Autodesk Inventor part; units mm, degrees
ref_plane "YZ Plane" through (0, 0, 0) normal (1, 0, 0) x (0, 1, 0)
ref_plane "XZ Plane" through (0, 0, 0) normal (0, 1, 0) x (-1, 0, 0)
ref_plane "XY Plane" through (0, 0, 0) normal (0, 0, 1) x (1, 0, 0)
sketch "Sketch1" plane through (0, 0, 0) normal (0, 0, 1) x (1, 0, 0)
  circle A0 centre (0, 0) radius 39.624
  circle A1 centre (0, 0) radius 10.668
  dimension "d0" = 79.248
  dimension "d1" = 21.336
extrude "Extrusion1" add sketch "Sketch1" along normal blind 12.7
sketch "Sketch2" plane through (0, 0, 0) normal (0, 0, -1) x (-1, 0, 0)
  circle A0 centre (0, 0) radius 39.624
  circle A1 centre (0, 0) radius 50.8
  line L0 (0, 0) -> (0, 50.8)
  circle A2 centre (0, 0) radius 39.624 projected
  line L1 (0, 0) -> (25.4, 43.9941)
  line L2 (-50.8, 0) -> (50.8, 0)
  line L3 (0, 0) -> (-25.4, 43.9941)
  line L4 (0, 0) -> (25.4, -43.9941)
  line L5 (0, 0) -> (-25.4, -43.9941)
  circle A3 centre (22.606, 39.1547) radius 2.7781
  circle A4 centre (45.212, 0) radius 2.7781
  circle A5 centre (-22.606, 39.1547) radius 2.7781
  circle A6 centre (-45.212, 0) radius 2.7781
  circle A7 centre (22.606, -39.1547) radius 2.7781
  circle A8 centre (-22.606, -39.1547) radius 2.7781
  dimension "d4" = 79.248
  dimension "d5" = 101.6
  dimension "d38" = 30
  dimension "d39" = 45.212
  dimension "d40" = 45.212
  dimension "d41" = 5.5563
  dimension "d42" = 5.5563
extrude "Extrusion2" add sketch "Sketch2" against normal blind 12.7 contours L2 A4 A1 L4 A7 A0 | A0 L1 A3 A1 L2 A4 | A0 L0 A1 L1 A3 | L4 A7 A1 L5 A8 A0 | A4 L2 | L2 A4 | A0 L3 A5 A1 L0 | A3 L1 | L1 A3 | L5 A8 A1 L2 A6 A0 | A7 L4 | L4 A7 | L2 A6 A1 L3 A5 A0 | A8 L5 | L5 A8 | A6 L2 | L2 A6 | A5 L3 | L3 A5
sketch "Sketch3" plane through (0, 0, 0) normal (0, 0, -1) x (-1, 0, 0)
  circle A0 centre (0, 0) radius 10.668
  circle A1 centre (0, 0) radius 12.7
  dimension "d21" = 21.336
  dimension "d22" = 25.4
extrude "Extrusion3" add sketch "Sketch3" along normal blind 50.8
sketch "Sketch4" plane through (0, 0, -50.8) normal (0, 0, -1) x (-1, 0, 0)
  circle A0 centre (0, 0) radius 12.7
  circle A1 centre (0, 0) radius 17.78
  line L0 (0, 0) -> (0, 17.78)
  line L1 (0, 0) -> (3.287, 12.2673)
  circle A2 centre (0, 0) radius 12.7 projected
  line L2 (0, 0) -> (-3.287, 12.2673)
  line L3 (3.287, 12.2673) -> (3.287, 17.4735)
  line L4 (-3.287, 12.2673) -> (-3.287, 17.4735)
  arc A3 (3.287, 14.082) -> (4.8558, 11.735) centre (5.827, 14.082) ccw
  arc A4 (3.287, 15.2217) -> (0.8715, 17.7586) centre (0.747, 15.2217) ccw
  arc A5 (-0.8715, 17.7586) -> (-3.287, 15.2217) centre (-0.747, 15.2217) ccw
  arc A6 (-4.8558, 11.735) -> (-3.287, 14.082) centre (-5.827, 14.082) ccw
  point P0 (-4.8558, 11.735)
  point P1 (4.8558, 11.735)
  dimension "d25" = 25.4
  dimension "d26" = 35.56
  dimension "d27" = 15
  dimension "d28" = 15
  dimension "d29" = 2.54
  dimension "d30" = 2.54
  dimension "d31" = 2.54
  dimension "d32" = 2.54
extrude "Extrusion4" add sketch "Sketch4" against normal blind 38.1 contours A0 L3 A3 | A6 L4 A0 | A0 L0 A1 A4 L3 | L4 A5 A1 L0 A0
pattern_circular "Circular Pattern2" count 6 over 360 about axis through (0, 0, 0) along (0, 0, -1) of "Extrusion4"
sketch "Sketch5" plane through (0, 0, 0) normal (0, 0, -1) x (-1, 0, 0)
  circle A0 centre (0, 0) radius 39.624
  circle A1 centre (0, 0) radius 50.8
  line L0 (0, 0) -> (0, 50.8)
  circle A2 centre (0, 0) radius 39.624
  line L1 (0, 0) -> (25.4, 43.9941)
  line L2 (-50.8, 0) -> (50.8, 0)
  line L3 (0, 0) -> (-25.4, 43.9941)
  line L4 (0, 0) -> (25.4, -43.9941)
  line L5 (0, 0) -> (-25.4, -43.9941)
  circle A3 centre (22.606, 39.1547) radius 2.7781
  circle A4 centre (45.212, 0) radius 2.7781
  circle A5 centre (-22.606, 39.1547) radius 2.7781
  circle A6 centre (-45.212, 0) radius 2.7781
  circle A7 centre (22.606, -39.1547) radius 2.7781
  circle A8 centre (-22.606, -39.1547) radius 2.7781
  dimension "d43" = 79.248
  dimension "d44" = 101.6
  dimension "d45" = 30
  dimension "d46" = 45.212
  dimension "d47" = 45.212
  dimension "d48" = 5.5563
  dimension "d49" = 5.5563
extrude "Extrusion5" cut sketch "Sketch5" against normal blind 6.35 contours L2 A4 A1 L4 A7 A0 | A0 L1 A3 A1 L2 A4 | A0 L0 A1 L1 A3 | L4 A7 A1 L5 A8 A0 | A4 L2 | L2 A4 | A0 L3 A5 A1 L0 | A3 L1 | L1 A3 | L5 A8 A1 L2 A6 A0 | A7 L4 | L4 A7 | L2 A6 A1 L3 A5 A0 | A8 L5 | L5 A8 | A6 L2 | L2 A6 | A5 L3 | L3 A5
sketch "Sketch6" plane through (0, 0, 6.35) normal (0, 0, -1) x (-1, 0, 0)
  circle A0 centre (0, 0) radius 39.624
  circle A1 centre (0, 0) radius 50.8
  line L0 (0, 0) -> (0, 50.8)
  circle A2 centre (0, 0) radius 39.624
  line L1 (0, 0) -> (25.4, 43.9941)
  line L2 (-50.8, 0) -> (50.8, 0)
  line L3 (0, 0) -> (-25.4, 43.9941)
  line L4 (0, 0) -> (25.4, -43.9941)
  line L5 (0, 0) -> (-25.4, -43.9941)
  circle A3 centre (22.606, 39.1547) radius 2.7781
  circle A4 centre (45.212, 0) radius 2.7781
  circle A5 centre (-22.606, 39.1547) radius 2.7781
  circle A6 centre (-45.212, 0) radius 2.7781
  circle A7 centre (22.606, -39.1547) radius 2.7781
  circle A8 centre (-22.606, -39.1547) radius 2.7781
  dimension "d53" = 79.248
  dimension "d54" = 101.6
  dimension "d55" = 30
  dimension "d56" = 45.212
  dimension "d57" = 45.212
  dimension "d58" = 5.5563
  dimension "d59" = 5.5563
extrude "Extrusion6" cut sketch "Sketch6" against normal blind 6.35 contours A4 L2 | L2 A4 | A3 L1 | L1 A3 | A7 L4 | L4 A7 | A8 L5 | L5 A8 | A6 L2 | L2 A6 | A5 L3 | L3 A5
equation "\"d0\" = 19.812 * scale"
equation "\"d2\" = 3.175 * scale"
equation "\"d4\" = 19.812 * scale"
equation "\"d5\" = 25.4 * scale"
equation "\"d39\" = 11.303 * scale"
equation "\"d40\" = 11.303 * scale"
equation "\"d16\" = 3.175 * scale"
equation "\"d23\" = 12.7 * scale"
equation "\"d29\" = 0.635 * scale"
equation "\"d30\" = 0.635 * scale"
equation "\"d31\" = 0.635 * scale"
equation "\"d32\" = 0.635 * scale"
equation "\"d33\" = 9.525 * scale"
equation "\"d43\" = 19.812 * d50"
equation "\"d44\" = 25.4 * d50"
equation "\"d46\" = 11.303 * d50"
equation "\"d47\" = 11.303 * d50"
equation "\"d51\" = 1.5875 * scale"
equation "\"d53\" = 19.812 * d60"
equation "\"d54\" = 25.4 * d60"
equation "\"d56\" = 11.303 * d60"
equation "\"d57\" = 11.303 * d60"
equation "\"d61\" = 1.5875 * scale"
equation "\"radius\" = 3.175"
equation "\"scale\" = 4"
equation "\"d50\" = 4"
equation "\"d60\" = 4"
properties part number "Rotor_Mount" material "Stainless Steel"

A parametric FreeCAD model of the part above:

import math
import FreeCAD as App
import Part
import Sketcher
from FreeCAD import Vector
Q = App.Units.Quantity

doc = App.newDocument("Part")
params = doc.addObject("Spreadsheet::Sheet", "Params")
for row, (alias, value) in enumerate([
    ("sketch1_diameter", "3.12 in"),
    ("sketch1_diameter2", "0.84 in"),
    ("pad1_length", "0.5 in"),
    ("sketch2_diameter", "4 in"),
    ("sketch2_diameter2", "3.12 in"),
    ("pad2_length", "0.5 in"),
    ("sketch3_diameter", "1 in"),
    ("sketch3_diameter2", "0.84 in"),
    ("pad3_length", "2 in"),
    ("sketch4_radius", "0.1 in"),
    ("sketch4_radius2", "0.7 in"),
    ("sketch4_radius3", "0.5 in"),
    ("pad4_length", "1.5 in"),
    ("sketch5_diameter", "4 in"),
    ("sketch5_diameter2", "3.12 in"),
    ("pocket1_length", "0.25 in"),
    ("sketch6_diameter", "0.218748 in"),
    ("pocket2_length", "0.25 in"),
], start=1):
    params.set(f"A{row}", alias)
    params.set(f"B{row}", "=" + value)
    params.setAlias(f"B{row}", alias)

body = doc.addObject("PartDesign::Body", "Body")

# Sketch on XY plane
sketch1 = body.newObject("Sketcher::SketchObject", "Sketch")
sketch1.AttachmentSupport = (doc.getObject("XY_Plane"), [""])
sketch1.MapMode = "FlatFace"
sketch1.addGeometry(Part.Circle(Vector(0, 0, 0), Vector(0, 0, 1), 40), False)
sketch1.addGeometry(Part.Circle(Vector(0, 0, 0), Vector(0, 0, 1), 11), False)
sketch1.addConstraint(Sketcher.Constraint("Coincident", 0, 3, -1, 1))
sketch1.addConstraint(Sketcher.Constraint("Coincident", 1, 3, -1, 1))
sketch1.addConstraint(Sketcher.Constraint("Diameter", 0, Q("3.12 in")))
sketch1.addConstraint(Sketcher.Constraint("Diameter", 1, Q("0.84 in")))
sketch1.setExpression("Constraints[2]", "Params.sketch1_diameter")
sketch1.setExpression("Constraints[3]", "Params.sketch1_diameter2")
pad1 = body.newObject("PartDesign::Pad", "Pad")
pad1.Profile = sketch1
pad1.setExpression("Length", "Params.pad1_length")

# Sketch on XY plane
sketch2 = body.newObject("Sketcher::SketchObject", "Sketch001")
sketch2.AttachmentSupport = (doc.getObject("XY_Plane"), [""])
sketch2.MapMode = "FlatFace"
sketch2.addGeometry(Part.Circle(Vector(0, 0, 0), Vector(0, 0, 1), 51), False)
sketch2.addGeometry(Part.Circle(Vector(0, 0, 0), Vector(0, 0, 1), 40), False)
sketch2.addConstraint(Sketcher.Constraint("Coincident", 0, 3, -1, 1))
sketch2.addConstraint(Sketcher.Constraint("Coincident", 1, 3, -1, 1))
sketch2.addConstraint(Sketcher.Constraint("Diameter", 0, Q("4 in")))
sketch2.addConstraint(Sketcher.Constraint("Diameter", 1, Q("3.12 in")))
sketch2.setExpression("Constraints[2]", "Params.sketch2_diameter")
sketch2.setExpression("Constraints[3]", "Params.sketch2_diameter2")
pad2 = body.newObject("PartDesign::Pad", "Pad001")
pad2.Profile = sketch2
pad2.setExpression("Length", "Params.pad2_length")

# Sketch on XY plane
sketch3 = body.newObject("Sketcher::SketchObject", "Sketch002")
sketch3.AttachmentSupport = (doc.getObject("XY_Plane"), [""])
sketch3.MapMode = "FlatFace"
sketch3.addGeometry(Part.Circle(Vector(0, 0, 0), Vector(0, 0, 1), 13), False)
sketch3.addGeometry(Part.Circle(Vector(0, 0, 0), Vector(0, 0, 1), 11), False)
sketch3.addConstraint(Sketcher.Constraint("Coincident", 0, 3, -1, 1))
sketch3.addConstraint(Sketcher.Constraint("Coincident", 1, 3, -1, 1))
sketch3.addConstraint(Sketcher.Constraint("Diameter", 0, Q("1 in")))
sketch3.addConstraint(Sketcher.Constraint("Diameter", 1, Q("0.84 in")))
sketch3.setExpression("Constraints[2]", "Params.sketch3_diameter")
sketch3.setExpression("Constraints[3]", "Params.sketch3_diameter2")
pad3 = body.newObject("PartDesign::Pad", "Pad002")
pad3.Profile = sketch3
pad3.setExpression("Length", "Params.pad3_length")
pad3.Reversed = True

# Sketch on XY plane
sketch4 = body.newObject("Sketcher::SketchObject", "Sketch003")
sketch4.AttachmentSupport = (doc.getObject("XY_Plane"), [""])
sketch4.MapMode = "FlatFace"
sketch4.AttachmentOffset = App.Placement(Vector(0, 0, -2 * 25.4), App.Rotation())
sketch4.addGeometry(Part.ArcOfCircle(Part.Circle(Vector(-5.8, 14.1, 0), Vector(0, 0, 1), 2.5), math.radians(-68), math.radians(0)), False)
sketch4.addGeometry(Part.LineSegment(Vector(-3.3, 14.1, 0), Vector(-3.3, 15.2, 0)), False)
sketch4.addGeometry(Part.ArcOfCircle(Part.Circle(Vector(-0.7, 15.2, 0), Vector(0, 0, 1), 2.5), math.radians(93), math.radians(180)), False)
sketch4.addGeometry(Part.ArcOfCircle(Part.Circle(Vector(0, 0, 0), Vector(0, 0, 1), 17.8), math.radians(87.19), math.radians(92.81)), False)
sketch4.addGeometry(Part.ArcOfCircle(Part.Circle(Vector(0.7, 15.2, 0), Vector(0, 0, 1), 2.5), math.radians(0), math.radians(87)), False)
sketch4.addGeometry(Part.LineSegment(Vector(3.3, 15.2, 0), Vector(3.3, 14.1, 0)), False)
sketch4.addGeometry(Part.ArcOfCircle(Part.Circle(Vector(5.8, 14.1, 0), Vector(0, 0, 1), 2.5), math.radians(180), math.radians(248)), False)
sketch4.addGeometry(Part.ArcOfCircle(Part.Circle(Vector(0, 0, 0), Vector(0, 0, 1), 12.7), math.radians(68), math.radians(112)), False)
sketch4.addConstraint(Sketcher.Constraint("Tangent", 0, 2, 1, 1))
sketch4.addConstraint(Sketcher.Constraint("Tangent", 1, 2, 2, 2))
sketch4.addConstraint(Sketcher.Constraint("Tangent", 2, 1, 3, 2))
sketch4.addConstraint(Sketcher.Constraint("Tangent", 3, 1, 4, 2))
sketch4.addConstraint(Sketcher.Constraint("Tangent", 4, 1, 5, 1))
sketch4.addConstraint(Sketcher.Constraint("Tangent", 5, 2, 6, 1))
sketch4.addConstraint(Sketcher.Constraint("Tangent", 6, 2, 7, 1))
sketch4.addConstraint(Sketcher.Constraint("Tangent", 7, 2, 0, 1))
sketch4.addConstraint(Sketcher.Constraint("Vertical", 1))
sketch4.addConstraint(Sketcher.Constraint("Vertical", 5))
sketch4.addConstraint(Sketcher.Constraint("Coincident", 3, 3, -1, 1))
sketch4.addConstraint(Sketcher.Constraint("Coincident", 7, 3, -1, 1))
sketch4.addConstraint(Sketcher.Constraint("Equal", 0, 2))
sketch4.addConstraint(Sketcher.Constraint("Equal", 2, 4))
sketch4.addConstraint(Sketcher.Constraint("Equal", 4, 6))
sketch4.addConstraint(Sketcher.Constraint("Horizontal", 2, 3, 4, 3))
sketch4.addConstraint(Sketcher.Constraint("Radius", 0, Q("0.1 in")))
sketch4.addConstraint(Sketcher.Constraint("Radius", 3, Q("0.7 in")))
sketch4.addConstraint(Sketcher.Constraint("Radius", 7, Q("0.5 in")))
sketch4.addConstraint(Sketcher.Constraint("DistanceY", -1, 1, 6, 2, Q("0.462 in")))
sketch4.setExpression("Constraints[16]", "Params.sketch4_radius")
sketch4.setExpression("Constraints[17]", "Params.sketch4_radius2")
sketch4.setExpression("Constraints[18]", "Params.sketch4_radius3")
pad4 = body.newObject("PartDesign::Pad", "Pad003")
pad4.Profile = sketch4
pad4.setExpression("Length", "Params.pad4_length")
doc.recompute()

polarpattern = body.newObject("PartDesign::PolarPattern", "PolarPattern")
polarpattern.Originals = [pad4]
polarpattern.Axis = (doc.getObject("Z_Axis"), [""])
polarpattern.Angle = 360
polarpattern.Occurrences = 6
body.Tip = polarpattern

# Sketch on XY plane
sketch5 = body.newObject("Sketcher::SketchObject", "Sketch004")
sketch5.AttachmentSupport = (doc.getObject("XY_Plane"), [""])
sketch5.MapMode = "FlatFace"
sketch5.addGeometry(Part.Circle(Vector(0, 0, 0), Vector(0, 0, 1), 51), False)
sketch5.addGeometry(Part.Circle(Vector(0, 0, 0), Vector(0, 0, 1), 40), False)
sketch5.addConstraint(Sketcher.Constraint("Coincident", 0, 3, -1, 1))
sketch5.addConstraint(Sketcher.Constraint("Coincident", 1, 3, -1, 1))
sketch5.addConstraint(Sketcher.Constraint("Diameter", 0, Q("4 in")))
sketch5.addConstraint(Sketcher.Constraint("Diameter", 1, Q("3.12 in")))
sketch5.setExpression("Constraints[2]", "Params.sketch5_diameter")
sketch5.setExpression("Constraints[3]", "Params.sketch5_diameter2")
pocket1 = body.newObject("PartDesign::Pocket", "Pocket")
pocket1.Profile = sketch5
pocket1.setExpression("Length", "Params.pocket1_length")
pocket1.Reversed = True

# Sketch on XY plane
sketch6 = body.newObject("Sketcher::SketchObject", "Sketch005")
sketch6.AttachmentSupport = (doc.getObject("XY_Plane"), [""])
sketch6.MapMode = "FlatFace"
sketch6.AttachmentOffset = App.Placement(Vector(0, 0, 0.25 * 25.4), App.Rotation())
sketch6.addGeometry(Part.Circle(Vector(-45.2, 0, 0), Vector(0, 0, 1), 2.8), False)
sketch6.addGeometry(Part.Circle(Vector(-22.6, 39.2, 0), Vector(0, 0, 1), 2.8), False)
sketch6.addGeometry(Part.Circle(Vector(-22.6, -39.2, 0), Vector(0, 0, 1), 2.8), False)
sketch6.addGeometry(Part.Circle(Vector(22.6, -39.2, 0), Vector(0, 0, 1), 2.8), False)
sketch6.addGeometry(Part.Circle(Vector(45.2, 0, 0), Vector(0, 0, 1), 2.8), False)
sketch6.addGeometry(Part.Circle(Vector(22.6, 39.2, 0), Vector(0, 0, 1), 2.8), False)
sketch6.addConstraint(Sketcher.Constraint("Equal", 0, 1))
sketch6.addConstraint(Sketcher.Constraint("Equal", 1, 2))
sketch6.addConstraint(Sketcher.Constraint("Equal", 2, 3))
sketch6.addConstraint(Sketcher.Constraint("Equal", 3, 4))
sketch6.addConstraint(Sketcher.Constraint("Equal", 4, 5))
sketch6.addConstraint(Sketcher.Constraint("Symmetric", 1, 3, 3, 3, -1, 1))
sketch6.addConstraint(Sketcher.Constraint("Symmetric", 0, 3, 4, 3, -1, 1))
sketch6.addConstraint(Sketcher.Constraint("Symmetric", 2, 3, 5, 3, -1, 1))
sketch6.addConstraint(Sketcher.Constraint("Symmetric", 2, 3, 3, 3, -2))
sketch6.addConstraint(Sketcher.Constraint("PointOnObject", 0, 3, -1))
sketch6.addConstraint(Sketcher.Constraint("Diameter", 0, Q("0.218748 in")))
sketch6.addConstraint(Sketcher.Constraint("DistanceX", 0, 3, -1, 1, Q("1.78 in")))
sketch6.addConstraint(Sketcher.Constraint("DistanceX", 2, 3, 3, 3, Q("1.78 in")))
sketch6.addConstraint(Sketcher.Constraint("DistanceY", -1, 1, 1, 3, 39.1547))
sketch6.setExpression("Constraints[10]", "Params.sketch6_diameter")
pocket2 = body.newObject("PartDesign::Pocket", "Pocket001")
pocket2.Profile = sketch6
pocket2.setExpression("Length", "Params.pocket2_length")
pocket2.Reversed = True

doc.recompute()
